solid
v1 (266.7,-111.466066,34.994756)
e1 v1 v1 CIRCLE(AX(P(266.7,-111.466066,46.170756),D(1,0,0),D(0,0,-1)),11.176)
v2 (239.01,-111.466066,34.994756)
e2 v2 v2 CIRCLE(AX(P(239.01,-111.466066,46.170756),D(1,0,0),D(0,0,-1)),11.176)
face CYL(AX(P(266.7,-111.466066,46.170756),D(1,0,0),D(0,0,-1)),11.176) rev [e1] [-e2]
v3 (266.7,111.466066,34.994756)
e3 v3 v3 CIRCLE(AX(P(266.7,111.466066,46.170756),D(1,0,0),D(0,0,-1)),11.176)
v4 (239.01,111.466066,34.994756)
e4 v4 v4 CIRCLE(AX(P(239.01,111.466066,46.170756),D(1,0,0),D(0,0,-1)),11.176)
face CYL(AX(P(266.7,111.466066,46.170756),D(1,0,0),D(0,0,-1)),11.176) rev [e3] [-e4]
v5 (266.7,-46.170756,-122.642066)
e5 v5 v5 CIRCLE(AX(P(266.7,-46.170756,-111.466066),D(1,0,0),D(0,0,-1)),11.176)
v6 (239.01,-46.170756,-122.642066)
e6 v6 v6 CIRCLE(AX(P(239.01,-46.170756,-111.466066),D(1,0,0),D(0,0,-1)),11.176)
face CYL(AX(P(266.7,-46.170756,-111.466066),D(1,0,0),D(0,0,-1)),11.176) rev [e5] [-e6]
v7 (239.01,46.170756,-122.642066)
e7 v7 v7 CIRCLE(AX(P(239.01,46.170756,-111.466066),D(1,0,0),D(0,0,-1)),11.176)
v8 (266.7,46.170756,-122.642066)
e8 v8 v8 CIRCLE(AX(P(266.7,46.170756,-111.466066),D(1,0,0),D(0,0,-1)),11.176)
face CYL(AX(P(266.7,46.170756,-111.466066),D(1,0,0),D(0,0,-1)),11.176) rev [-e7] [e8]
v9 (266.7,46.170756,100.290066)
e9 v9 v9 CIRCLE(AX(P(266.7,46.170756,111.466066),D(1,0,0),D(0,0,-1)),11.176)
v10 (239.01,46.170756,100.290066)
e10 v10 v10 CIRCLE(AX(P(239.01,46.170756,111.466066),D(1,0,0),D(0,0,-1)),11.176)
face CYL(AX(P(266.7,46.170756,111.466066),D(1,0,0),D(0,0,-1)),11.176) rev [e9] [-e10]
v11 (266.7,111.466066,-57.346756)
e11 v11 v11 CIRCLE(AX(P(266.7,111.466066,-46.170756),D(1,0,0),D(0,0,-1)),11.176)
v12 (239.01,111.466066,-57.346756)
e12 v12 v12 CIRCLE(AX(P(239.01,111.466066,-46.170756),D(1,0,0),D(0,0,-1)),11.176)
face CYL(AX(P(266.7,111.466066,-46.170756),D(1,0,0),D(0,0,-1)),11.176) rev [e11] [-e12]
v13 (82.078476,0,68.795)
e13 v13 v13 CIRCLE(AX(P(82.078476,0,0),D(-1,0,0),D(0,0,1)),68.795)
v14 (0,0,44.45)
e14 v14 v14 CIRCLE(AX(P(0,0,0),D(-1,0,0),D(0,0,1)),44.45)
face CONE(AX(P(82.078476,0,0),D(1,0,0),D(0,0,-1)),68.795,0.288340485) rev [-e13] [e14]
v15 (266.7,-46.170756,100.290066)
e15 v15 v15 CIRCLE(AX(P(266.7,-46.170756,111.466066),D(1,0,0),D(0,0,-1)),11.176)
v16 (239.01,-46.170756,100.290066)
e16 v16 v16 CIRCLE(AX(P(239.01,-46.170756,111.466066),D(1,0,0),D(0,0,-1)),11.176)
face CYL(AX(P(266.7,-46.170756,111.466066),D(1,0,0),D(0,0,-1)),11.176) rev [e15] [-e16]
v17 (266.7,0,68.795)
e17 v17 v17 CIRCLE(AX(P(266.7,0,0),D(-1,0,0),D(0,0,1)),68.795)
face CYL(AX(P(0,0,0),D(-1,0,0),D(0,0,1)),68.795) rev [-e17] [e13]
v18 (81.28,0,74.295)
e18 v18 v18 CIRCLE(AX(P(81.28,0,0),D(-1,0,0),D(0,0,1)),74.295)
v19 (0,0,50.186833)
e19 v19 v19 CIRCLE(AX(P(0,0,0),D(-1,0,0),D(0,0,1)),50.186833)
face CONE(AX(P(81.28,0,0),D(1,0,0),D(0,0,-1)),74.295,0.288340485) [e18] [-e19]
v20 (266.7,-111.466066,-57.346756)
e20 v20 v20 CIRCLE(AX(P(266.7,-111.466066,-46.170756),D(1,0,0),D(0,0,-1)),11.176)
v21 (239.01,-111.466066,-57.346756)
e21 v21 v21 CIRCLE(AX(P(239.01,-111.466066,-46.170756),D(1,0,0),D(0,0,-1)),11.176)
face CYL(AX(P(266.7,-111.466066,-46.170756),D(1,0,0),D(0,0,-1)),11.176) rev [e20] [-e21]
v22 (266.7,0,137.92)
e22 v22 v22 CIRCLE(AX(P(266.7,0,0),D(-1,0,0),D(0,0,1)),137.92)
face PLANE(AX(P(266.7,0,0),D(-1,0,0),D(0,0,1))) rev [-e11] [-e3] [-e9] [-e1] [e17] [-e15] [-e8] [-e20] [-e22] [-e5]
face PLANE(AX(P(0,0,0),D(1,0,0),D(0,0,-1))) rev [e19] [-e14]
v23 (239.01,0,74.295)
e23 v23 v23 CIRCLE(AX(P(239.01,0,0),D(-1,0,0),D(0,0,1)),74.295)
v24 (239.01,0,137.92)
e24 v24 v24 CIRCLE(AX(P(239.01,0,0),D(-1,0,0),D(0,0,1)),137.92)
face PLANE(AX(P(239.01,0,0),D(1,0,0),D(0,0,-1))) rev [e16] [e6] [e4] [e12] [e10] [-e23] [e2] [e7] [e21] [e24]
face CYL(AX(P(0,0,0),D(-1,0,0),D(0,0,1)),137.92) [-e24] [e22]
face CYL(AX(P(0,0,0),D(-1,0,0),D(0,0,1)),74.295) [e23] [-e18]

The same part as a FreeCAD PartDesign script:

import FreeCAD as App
import Part
import Sketcher

V = App.Vector
Q = App.Units.Quantity


def add_polygon(sketch, points):
    """Adds a closed chain of lines whose ends are joined by coincident constraints."""
    first, n = sketch.GeometryCount, len(points)
    for a, b in zip(points, points[1:] + points[:1]):
        sketch.addGeometry(Part.LineSegment(App.Vector(*a, 0), App.Vector(*b, 0)), False)
    for i in range(n):
        sketch.addConstraint(Sketcher.Constraint("Coincident", first + i, 2, first + (i + 1) % n, 1))

doc = App.newDocument("Part")
body = doc.addObject("PartDesign::Body", "Body")

# Sketch on XY plane
sketch1 = doc.addObject("Sketcher::SketchObject", "Sketch")
body.addObject(sketch1)
sketch1.AttachmentSupport = (doc.XY_Plane, [""])
sketch1.MapMode = "FlatFace"
add_polygon(sketch1, [(266.7, 68.795), (266.7, 137.92), (239.01, 137.92), (239.01, 74.295), (81.28, 74.295), (0, 50.186833), (0, 44.45), (82.078476, 68.795)])  # lines 0-7
sketch1.addConstraint([
    Sketcher.Constraint("Vertical", 0),
    Sketcher.Constraint("Horizontal", 1),
    Sketcher.Constraint("Vertical", 2),
    Sketcher.Constraint("Horizontal", 3),
    Sketcher.Constraint("Vertical", 5),
    Sketcher.Constraint("Horizontal", 7),
    Sketcher.Constraint("PointOnObject", 4, 2, -2),
    Sketcher.Constraint("Parallel", 4, 6),
    Sketcher.Constraint("DistanceX", -1, 1, 0, 2, Q("10.5 in")),
    Sketcher.Constraint("DistanceX", -1, 1, 3, 2, Q("3.2 in")),
    Sketcher.Constraint("DistanceY", -1, 1, 5, 2, Q("1.75 in")),
    Sketcher.Constraint("DistanceY", -1, 1, 2, 2, Q("2.925 in")),
    Sketcher.Constraint("DistanceX", 1, 2, 1, 1, 27.69),
    Sketcher.Constraint("DistanceY", 0, 1, 0, 2, 69.125),
    Sketcher.Constraint("DistanceY", 2, 2, 2, 1, 63.625),
    Sketcher.Constraint("Distance", 6, 85.612822),
])
revolution = doc.addObject("PartDesign::Revolution", "Revolution")
body.addObject(revolution)
revolution.Profile = sketch1
revolution.ReferenceAxis = (sketch1, ["H_Axis"])
revolution.Angle = 360

# Sketch on YZ plane
sketch2 = doc.addObject("Sketcher::SketchObject", "Sketch001")
body.addObject(sketch2)
sketch2.AttachmentSupport = (doc.YZ_Plane, [""])
sketch2.MapMode = "FlatFace"
sketch2.AttachmentOffset = App.Placement(V(0, 0, 10.5 * 25.4), App.Rotation())
sketch2.addGeometry(Part.Circle(V(111.466066, 46.170756, 0), V(0, 0, 1), 11.176), False)
sketch2.addConstraint([
    Sketcher.Constraint("Diameter", 0, Q("0.88 in")),
    Sketcher.Constraint("DistanceX", -1, 1, 0, 3, 111.466066),
    Sketcher.Constraint("DistanceY", -1, 1, 0, 3, 46.170756),
])
doc.recompute()
hole = doc.addObject("PartDesign::Hole", "Hole")
body.addObject(hole)
hole.Profile = sketch2
hole.ThreadType = "None"
hole.Diameter = Q("0.88 in")
hole.DepthType = "ThroughAll"
doc.recompute()

polarpattern = doc.addObject("PartDesign::PolarPattern", "PolarPattern")
body.addObject(polarpattern)
polarpattern.Originals = [hole]
polarpattern.Axis = (doc.X_Axis, [""])
polarpattern.Angle = 360
polarpattern.Occurrences = 8
body.Tip = polarpattern

doc.recompute()
